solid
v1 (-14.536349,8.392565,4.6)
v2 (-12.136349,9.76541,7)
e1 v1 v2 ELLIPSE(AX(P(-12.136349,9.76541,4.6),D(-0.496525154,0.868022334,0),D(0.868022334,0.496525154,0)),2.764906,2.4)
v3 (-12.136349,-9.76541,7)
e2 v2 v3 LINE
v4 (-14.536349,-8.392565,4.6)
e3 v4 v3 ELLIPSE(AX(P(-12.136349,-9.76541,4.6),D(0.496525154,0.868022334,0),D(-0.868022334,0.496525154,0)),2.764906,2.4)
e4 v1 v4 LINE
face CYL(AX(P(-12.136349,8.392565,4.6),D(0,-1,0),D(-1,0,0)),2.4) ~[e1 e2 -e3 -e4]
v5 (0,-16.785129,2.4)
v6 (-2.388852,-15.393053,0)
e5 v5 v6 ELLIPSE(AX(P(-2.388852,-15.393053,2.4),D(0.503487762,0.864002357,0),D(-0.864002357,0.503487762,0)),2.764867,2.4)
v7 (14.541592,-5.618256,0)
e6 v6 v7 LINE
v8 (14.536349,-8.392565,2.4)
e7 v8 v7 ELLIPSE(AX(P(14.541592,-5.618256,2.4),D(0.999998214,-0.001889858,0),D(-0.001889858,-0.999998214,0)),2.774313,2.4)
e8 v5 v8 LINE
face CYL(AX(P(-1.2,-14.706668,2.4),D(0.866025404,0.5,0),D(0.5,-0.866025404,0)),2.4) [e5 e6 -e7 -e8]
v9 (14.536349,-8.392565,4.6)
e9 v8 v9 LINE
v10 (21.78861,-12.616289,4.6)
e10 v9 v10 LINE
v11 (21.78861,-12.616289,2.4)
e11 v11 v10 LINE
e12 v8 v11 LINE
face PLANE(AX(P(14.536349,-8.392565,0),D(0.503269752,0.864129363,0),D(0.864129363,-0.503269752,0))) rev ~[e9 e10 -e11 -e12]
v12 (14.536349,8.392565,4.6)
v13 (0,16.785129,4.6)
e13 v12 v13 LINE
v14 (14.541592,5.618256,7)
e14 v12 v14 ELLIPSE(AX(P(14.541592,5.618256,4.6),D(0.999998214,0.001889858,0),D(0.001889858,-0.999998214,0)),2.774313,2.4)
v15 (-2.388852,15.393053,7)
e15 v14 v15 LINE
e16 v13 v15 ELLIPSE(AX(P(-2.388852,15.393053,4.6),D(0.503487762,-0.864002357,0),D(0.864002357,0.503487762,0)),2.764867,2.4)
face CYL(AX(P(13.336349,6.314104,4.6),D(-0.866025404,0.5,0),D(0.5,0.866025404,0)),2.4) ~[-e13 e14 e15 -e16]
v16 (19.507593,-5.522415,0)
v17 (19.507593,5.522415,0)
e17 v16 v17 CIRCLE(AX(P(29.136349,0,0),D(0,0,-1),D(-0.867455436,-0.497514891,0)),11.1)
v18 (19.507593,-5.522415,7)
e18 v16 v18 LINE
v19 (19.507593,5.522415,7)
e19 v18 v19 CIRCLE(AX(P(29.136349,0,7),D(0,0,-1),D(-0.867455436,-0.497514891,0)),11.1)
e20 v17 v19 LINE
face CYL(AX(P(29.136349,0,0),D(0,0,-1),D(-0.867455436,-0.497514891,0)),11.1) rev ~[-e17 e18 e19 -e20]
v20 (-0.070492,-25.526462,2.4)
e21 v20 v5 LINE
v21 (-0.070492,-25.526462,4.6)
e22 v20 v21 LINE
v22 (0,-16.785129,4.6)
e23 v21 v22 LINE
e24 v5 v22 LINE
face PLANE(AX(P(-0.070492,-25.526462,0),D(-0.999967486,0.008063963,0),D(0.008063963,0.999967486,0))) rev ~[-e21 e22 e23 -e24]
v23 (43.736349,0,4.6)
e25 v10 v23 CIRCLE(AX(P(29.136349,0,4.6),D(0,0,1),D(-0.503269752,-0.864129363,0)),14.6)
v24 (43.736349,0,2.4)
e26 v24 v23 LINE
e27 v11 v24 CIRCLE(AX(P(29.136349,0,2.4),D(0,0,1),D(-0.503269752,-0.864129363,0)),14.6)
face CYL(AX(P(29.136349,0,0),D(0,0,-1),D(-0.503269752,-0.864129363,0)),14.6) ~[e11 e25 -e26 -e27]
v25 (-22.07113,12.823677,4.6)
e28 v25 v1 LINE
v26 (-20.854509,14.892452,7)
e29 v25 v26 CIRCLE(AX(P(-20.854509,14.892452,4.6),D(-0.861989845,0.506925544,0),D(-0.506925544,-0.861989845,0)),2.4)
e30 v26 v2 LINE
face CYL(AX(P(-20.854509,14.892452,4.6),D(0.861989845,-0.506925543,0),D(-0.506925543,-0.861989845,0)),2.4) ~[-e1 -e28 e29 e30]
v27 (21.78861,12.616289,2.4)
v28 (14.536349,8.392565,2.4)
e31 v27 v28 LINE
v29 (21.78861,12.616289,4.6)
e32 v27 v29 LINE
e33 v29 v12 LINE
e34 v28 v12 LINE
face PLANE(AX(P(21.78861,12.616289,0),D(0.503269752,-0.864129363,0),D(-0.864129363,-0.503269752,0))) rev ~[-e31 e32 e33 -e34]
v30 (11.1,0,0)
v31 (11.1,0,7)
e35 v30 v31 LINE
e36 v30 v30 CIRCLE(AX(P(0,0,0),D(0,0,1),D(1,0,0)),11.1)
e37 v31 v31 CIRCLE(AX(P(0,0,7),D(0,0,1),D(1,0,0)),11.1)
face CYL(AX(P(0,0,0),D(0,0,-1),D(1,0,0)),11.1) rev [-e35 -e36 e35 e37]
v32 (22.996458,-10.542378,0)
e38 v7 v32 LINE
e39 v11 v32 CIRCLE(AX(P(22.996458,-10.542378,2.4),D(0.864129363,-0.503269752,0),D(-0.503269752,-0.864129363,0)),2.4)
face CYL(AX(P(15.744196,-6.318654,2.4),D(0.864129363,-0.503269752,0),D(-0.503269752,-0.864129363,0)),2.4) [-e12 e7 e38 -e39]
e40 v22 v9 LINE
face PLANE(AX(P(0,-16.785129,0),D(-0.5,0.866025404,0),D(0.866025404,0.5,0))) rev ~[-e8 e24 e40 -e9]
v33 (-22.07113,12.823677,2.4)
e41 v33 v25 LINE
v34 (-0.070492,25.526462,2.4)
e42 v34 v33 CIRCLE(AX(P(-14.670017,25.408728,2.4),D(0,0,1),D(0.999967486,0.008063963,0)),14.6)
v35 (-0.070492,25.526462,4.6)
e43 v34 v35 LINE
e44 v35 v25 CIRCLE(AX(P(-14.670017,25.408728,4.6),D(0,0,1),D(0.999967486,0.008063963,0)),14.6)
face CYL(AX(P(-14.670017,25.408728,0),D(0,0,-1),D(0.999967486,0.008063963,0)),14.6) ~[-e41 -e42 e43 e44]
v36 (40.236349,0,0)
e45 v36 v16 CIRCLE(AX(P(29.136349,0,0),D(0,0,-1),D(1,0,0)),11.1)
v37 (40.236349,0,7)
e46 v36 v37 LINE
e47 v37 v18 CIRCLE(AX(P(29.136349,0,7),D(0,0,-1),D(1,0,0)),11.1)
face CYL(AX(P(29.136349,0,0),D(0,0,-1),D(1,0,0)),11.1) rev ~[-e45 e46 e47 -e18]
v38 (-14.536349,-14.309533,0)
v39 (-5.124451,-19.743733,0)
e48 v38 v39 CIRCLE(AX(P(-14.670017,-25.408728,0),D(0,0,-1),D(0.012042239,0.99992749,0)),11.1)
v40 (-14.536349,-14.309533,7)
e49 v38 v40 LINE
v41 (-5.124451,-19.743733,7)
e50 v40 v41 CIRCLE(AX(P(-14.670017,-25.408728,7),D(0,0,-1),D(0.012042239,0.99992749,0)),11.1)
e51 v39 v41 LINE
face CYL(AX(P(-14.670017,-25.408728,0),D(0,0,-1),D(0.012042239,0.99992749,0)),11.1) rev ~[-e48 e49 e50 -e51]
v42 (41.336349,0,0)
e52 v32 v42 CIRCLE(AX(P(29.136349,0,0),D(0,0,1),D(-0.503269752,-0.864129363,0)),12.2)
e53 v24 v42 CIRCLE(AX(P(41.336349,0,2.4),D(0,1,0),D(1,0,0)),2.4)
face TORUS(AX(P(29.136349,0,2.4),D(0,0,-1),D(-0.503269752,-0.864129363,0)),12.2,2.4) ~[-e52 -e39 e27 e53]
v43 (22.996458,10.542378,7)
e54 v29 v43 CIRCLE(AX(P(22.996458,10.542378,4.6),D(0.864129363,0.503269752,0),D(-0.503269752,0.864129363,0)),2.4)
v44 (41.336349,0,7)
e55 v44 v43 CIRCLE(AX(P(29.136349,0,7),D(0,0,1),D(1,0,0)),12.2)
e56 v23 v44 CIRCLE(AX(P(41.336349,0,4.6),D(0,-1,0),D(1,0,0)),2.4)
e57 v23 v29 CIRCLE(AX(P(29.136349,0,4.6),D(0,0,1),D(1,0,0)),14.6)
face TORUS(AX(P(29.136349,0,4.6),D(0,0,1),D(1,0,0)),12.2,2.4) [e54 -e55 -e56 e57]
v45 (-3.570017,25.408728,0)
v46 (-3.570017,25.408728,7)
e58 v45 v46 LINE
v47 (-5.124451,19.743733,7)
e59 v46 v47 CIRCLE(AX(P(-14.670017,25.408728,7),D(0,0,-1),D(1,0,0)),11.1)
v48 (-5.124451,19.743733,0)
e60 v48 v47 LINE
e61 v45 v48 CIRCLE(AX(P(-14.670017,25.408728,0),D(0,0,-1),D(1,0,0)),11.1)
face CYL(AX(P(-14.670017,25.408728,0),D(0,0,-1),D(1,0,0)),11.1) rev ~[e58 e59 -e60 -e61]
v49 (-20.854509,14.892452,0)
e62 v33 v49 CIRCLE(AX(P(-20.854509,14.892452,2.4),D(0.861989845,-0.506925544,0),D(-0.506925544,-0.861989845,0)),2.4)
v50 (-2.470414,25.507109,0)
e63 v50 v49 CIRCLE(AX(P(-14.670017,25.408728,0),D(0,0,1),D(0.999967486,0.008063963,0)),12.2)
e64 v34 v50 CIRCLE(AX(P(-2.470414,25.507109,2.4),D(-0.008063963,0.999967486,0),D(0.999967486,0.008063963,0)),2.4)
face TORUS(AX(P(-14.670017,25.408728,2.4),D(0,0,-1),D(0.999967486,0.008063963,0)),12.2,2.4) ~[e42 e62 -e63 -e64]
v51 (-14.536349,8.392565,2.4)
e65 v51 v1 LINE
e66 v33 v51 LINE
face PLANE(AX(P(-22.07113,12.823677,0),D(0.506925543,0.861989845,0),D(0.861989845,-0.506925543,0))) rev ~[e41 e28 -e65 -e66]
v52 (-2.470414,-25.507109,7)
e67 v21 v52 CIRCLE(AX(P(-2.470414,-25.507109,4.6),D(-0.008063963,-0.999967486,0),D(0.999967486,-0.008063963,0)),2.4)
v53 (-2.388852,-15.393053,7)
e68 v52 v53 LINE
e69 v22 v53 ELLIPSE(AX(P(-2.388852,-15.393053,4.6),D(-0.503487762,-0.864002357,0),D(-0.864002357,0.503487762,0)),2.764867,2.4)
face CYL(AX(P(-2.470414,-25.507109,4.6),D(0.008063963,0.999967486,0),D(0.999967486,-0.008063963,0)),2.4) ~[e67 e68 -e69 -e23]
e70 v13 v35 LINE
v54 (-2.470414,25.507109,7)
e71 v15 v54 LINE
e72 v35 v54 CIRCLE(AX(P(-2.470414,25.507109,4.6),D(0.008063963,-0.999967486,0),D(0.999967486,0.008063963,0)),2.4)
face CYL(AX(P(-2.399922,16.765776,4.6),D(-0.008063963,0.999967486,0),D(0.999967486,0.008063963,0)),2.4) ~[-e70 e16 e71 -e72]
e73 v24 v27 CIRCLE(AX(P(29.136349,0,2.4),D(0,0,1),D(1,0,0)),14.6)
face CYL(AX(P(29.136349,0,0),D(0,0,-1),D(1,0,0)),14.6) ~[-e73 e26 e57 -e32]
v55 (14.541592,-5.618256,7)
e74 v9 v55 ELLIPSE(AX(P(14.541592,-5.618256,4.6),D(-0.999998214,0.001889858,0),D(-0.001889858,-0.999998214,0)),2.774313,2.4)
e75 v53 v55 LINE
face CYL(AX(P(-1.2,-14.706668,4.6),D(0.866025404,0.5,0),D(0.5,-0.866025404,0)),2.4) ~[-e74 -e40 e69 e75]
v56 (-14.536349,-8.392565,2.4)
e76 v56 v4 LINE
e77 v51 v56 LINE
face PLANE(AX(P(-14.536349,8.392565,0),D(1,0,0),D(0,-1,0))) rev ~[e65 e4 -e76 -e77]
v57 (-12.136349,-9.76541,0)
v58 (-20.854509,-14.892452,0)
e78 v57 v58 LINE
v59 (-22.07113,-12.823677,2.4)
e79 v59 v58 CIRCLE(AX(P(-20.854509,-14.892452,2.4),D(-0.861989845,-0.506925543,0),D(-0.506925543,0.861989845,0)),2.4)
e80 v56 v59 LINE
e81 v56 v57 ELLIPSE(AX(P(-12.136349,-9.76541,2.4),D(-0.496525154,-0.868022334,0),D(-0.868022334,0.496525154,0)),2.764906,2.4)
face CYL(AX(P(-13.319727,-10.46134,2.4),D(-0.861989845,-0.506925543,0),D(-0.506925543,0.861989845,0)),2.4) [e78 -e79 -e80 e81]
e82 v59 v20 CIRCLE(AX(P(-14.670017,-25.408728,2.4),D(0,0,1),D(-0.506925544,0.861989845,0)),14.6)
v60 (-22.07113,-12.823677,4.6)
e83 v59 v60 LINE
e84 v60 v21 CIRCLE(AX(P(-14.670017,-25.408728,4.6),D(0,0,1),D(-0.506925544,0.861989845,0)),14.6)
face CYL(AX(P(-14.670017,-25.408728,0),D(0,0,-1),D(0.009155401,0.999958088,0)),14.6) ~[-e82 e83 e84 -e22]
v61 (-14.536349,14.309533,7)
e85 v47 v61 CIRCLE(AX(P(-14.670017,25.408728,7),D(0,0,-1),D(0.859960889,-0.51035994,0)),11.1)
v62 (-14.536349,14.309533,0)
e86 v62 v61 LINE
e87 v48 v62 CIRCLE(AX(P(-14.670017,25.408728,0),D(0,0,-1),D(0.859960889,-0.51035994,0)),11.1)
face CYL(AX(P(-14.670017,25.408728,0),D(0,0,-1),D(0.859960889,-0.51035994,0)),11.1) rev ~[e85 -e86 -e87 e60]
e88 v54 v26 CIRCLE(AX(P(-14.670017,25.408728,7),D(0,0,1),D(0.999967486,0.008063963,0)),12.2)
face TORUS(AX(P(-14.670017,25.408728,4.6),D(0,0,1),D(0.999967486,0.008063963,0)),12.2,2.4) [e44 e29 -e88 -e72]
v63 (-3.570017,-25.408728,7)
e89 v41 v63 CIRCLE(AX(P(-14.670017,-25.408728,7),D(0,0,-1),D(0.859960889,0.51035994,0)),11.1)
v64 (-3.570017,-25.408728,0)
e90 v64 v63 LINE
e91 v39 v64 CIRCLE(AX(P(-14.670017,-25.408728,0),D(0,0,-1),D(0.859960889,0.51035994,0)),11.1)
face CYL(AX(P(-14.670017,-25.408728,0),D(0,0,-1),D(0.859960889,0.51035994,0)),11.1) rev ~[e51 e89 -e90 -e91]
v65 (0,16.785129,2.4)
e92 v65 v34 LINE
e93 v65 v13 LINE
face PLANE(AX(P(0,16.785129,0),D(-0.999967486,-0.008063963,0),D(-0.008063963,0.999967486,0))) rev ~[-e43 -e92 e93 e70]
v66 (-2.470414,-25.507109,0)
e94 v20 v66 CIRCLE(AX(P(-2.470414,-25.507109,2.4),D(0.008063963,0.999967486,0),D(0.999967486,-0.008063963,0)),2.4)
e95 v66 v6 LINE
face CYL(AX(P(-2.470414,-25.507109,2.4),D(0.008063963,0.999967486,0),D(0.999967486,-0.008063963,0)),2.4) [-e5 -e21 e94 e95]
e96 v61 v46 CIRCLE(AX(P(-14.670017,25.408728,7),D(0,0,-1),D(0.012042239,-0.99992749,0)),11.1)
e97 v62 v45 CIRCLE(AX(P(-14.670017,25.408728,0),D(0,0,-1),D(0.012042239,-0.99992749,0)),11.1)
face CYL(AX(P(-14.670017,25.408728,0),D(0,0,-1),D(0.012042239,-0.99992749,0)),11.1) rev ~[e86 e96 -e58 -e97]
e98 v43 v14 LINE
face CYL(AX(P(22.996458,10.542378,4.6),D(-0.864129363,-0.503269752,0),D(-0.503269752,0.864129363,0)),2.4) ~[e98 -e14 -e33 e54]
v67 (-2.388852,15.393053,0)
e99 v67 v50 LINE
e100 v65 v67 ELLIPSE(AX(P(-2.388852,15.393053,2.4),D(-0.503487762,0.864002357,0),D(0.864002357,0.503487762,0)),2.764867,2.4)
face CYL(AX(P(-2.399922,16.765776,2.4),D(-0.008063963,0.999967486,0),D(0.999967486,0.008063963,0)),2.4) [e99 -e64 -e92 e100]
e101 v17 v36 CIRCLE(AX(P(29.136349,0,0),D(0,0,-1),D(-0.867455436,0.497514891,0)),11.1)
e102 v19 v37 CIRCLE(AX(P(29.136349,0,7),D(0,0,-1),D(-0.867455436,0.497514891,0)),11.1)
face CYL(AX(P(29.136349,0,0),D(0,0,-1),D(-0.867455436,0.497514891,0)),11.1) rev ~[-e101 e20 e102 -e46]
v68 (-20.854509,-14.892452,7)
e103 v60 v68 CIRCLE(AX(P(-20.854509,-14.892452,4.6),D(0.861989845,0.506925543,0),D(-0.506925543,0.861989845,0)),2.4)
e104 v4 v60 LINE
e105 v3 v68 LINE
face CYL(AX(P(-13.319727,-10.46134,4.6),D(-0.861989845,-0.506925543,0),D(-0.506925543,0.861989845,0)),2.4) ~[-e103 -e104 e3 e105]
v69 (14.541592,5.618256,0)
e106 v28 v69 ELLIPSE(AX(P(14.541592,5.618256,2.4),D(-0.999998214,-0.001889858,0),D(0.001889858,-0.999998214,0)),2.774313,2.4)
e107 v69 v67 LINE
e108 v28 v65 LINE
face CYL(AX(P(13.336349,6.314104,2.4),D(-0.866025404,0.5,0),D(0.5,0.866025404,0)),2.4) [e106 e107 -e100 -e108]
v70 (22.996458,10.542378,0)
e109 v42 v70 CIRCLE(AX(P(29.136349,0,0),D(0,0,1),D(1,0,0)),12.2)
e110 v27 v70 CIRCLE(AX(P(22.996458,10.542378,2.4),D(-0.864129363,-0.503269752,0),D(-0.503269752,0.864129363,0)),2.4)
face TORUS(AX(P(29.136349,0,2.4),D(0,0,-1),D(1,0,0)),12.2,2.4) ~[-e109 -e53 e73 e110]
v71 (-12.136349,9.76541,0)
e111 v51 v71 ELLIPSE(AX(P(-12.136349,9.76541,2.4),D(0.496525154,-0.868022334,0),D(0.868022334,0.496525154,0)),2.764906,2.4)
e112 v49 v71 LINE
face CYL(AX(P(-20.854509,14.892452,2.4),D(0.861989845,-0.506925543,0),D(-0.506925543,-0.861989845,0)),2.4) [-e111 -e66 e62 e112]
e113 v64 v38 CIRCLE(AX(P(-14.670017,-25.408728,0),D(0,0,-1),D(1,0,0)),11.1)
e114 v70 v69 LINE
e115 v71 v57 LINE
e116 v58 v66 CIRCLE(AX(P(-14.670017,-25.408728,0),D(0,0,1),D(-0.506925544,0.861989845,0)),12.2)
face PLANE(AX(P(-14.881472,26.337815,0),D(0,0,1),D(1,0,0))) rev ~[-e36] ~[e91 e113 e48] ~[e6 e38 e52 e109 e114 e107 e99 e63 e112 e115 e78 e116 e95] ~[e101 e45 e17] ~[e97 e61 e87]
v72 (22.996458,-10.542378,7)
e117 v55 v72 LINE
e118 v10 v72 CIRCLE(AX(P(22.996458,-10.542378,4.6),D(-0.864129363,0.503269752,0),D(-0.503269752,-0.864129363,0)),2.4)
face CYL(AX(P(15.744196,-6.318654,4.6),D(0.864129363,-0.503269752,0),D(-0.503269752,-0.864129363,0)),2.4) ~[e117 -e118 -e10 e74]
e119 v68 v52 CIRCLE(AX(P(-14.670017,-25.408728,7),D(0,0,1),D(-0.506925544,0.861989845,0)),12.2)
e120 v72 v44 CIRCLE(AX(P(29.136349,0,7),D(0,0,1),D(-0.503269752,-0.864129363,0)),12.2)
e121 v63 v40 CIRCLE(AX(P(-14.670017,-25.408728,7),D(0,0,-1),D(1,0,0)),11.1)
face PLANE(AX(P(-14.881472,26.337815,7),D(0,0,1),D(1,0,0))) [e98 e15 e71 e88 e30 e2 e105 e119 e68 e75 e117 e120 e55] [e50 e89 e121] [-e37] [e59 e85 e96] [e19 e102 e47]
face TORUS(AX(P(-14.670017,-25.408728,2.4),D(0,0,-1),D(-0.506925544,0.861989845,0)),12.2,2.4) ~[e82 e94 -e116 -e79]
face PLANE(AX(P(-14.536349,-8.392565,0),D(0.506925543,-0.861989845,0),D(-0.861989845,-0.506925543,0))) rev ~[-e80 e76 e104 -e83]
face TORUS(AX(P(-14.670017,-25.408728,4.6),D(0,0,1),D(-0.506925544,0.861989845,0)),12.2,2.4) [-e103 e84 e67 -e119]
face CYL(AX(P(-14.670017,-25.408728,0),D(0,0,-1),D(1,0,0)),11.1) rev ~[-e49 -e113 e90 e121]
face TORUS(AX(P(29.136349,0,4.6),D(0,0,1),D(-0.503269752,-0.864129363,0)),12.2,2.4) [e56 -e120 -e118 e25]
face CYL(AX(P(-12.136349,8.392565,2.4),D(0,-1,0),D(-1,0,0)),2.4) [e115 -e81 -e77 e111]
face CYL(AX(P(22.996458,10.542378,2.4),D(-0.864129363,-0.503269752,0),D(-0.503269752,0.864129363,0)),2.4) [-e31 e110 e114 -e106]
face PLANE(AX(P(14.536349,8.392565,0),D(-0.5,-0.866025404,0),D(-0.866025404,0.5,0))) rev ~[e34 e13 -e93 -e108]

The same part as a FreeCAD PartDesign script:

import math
import FreeCAD as App
import Part
import Sketcher
Q = App.Units.Quantity


def edges_at(feature, points):
    """Names of the edges that pass closest to the given points."""
    edges = feature.Shape.Edges
    near = lambda p: min(range(len(edges)), key=lambda i: edges[i].distToShape(Part.Vertex(*p))[0])
    return sorted({f"Edge{near(p) + 1}" for p in points})

doc = App.newDocument("Part")
body = doc.addObject("PartDesign::Body", "Body")

# Sketch on XY plane
sketch1 = doc.addObject("Sketcher::SketchObject", "Sketch")
body.addObject(sketch1)
sketch1.AttachmentSupport = (doc.XY_Plane, [""])
sketch1.MapMode = "FlatFace"
sketch1.addGeometry([
    Part.ArcOfCircle(Part.Circle(App.Vector(29.136349, 0, 0), App.Vector(0, 0, 1), 14.6), math.radians(-120.216562), math.radians(0)),  # 0
    Part.ArcOfCircle(Part.Circle(App.Vector(29.136349, 0, 0), App.Vector(0, 0, 1), 14.6), math.radians(0), math.radians(120.216562)),  # 1
    Part.LineSegment(App.Vector(21.78861, 12.616289, 0), App.Vector(14.536349, 8.392565, 0)),  # 2
    Part.LineSegment(App.Vector(14.536349, 8.392565, 0), App.Vector(0, 16.785129, 0)),  # 3
    Part.LineSegment(App.Vector(0, 16.785129, 0), App.Vector(-0.070492, 25.526462, 0)),  # 4
    Part.ArcOfCircle(Part.Circle(App.Vector(-14.670017, 25.408728, 0), App.Vector(0, 0, 1), 14.6), math.radians(0.462036), math.radians(239.540742)),  # 5
    Part.LineSegment(App.Vector(-22.07113, 12.823677, 0), App.Vector(-14.536349, 8.392565, 0)),  # 6
    Part.LineSegment(App.Vector(-14.536349, 8.392565, 0), App.Vector(-14.536349, -8.392565, 0)),  # 7
    Part.LineSegment(App.Vector(-14.536349, -8.392565, 0), App.Vector(-22.07113, -12.823677, 0)),  # 8
    Part.ArcOfCircle(Part.Circle(App.Vector(-14.670017, -25.408728, 0), App.Vector(0, 0, 1), 14.6), math.radians(120.459258), math.radians(359.537964)),  # 9
    Part.LineSegment(App.Vector(-0.070492, -25.526462, 0), App.Vector(0, -16.785129, 0)),  # 10
    Part.LineSegment(App.Vector(0, -16.785129, 0), App.Vector(14.536349, -8.392565, 0)),  # 11
    Part.LineSegment(App.Vector(14.536349, -8.392565, 0), App.Vector(21.78861, -12.616289, 0)),  # 12
    Part.Circle(App.Vector(0, 0, 0), App.Vector(0, 0, 1), 11.1),  # 13
    Part.ArcOfCircle(Part.Circle(App.Vector(29.136349, 0, 0), App.Vector(0, 0, 1), 11.1), math.radians(-150.164278), math.radians(0)),  # 14
    Part.ArcOfCircle(Part.Circle(App.Vector(29.136349, 0, 0), App.Vector(0, 0, 1), 11.1), math.radians(150.164278), math.radians(209.835722)),  # 15
    Part.ArcOfCircle(Part.Circle(App.Vector(29.136349, 0, 0), App.Vector(0, 0, 1), 11.1), math.radians(0), math.radians(150.164278)),  # 16
    Part.ArcOfCircle(Part.Circle(App.Vector(-14.670017, 25.408728, 0), App.Vector(0, 0, 1), 11.1), math.radians(0), math.radians(270.689986)),  # 17
    Part.ArcOfCircle(Part.Circle(App.Vector(-14.670017, 25.408728, 0), App.Vector(0, 0, 1), 11.1), math.radians(-30.687808), math.radians(0)),  # 18
    Part.ArcOfCircle(Part.Circle(App.Vector(-14.670017, 25.408728, 0), App.Vector(0, 0, 1), 11.1), math.radians(-89.310014), math.radians(-30.687808)),  # 19
    Part.ArcOfCircle(Part.Circle(App.Vector(-14.670017, -25.408728, 0), App.Vector(0, 0, 1), 11.1), math.radians(89.310014), math.radians(360)),  # 20
    Part.ArcOfCircle(Part.Circle(App.Vector(-14.670017, -25.408728, 0), App.Vector(0, 0, 1), 11.1), math.radians(30.687808), math.radians(89.310014)),  # 21
    Part.ArcOfCircle(Part.Circle(App.Vector(-14.670017, -25.408728, 0), App.Vector(0, 0, 1), 11.1), math.radians(0), math.radians(30.687808)),  # 22
], False)
sketch1.addConstraint([
    Sketcher.Constraint("Tangent", 0, 2, 1, 1),
    Sketcher.Constraint("Tangent", 1, 2, 2, 1),
    Sketcher.Constraint("Coincident", 2, 2, 3, 1),
    Sketcher.Constraint("Coincident", 3, 2, 4, 1),
    Sketcher.Constraint("Tangent", 4, 2, 5, 1),
    Sketcher.Constraint("Tangent", 5, 2, 6, 1),
    Sketcher.Constraint("Coincident", 6, 2, 7, 1),
    Sketcher.Constraint("Coincident", 7, 2, 8, 1),
    Sketcher.Constraint("Tangent", 8, 2, 9, 1),
    Sketcher.Constraint("Tangent", 9, 2, 10, 1),
    Sketcher.Constraint("Coincident", 10, 2, 11, 1),
    Sketcher.Constraint("Coincident", 11, 2, 12, 1),
    Sketcher.Constraint("Tangent", 12, 2, 0, 1),
    Sketcher.Constraint("Tangent", 14, 1, 15, 2),
    Sketcher.Constraint("Tangent", 15, 1, 16, 2),
    Sketcher.Constraint("Tangent", 16, 1, 14, 2),
    Sketcher.Constraint("Tangent", 17, 1, 18, 2),
    Sketcher.Constraint("Tangent", 18, 1, 19, 2),
    Sketcher.Constraint("Tangent", 19, 1, 17, 2),
    Sketcher.Constraint("Tangent", 20, 1, 21, 2),
    Sketcher.Constraint("Tangent", 21, 1, 22, 2),
    Sketcher.Constraint("Tangent", 22, 1, 20, 2),
    Sketcher.Constraint("Vertical", 7),
    Sketcher.Constraint("Coincident", 13, 3, -1, 1),
    Sketcher.Constraint("Coincident", 14, 3, 0, 3),
    Sketcher.Constraint("Coincident", 17, 3, 5, 3),
    Sketcher.Constraint("Coincident", 20, 3, 9, 3),
    Sketcher.Constraint("Equal", 0, 1),
    Sketcher.Constraint("Equal", 1, 5),
    Sketcher.Constraint("Equal", 5, 9),
    Sketcher.Constraint("Equal", 13, 14),
    Sketcher.Constraint("Equal", 16, 17),
    Sketcher.Constraint("Equal", 19, 20),
    Sketcher.Constraint("Symmetric", 2, 2, 7, 2, -1, 1),
    Sketcher.Constraint("Symmetric", 3, 2, 10, 2, -1, 1),
    Sketcher.Constraint("Symmetric", 6, 2, 11, 2, -1, 1),
    Sketcher.Constraint("Symmetric", 5, 3, 9, 3, -1),
    Sketcher.Constraint("Symmetric", 1, 2, 12, 2, -1),
    Sketcher.Constraint("PointOnObject", 0, 2, -1),
    Sketcher.Constraint("PointOnObject", 3, 2, -2),
    Sketcher.Constraint("PointOnObject", 16, 1, -1),
    Sketcher.Constraint("Horizontal", 19, 3, 17, 1),
    Sketcher.Constraint("Horizontal", 21, 3, 22, 1),
    Sketcher.Constraint("Vertical", 14, 1, 15, 1),
    Sketcher.Constraint("Vertical", 7, 2, 19, 1),
    Sketcher.Constraint("Vertical", 19, 1, 20, 1),
    Sketcher.Constraint("Vertical", 18, 1, 21, 1),
    Sketcher.Constraint("Diameter", 13, 22.2),
    Sketcher.Constraint("Radius", 0, 14.6),
    Sketcher.Constraint("Angle", 3, Q("150 deg")),
    Sketcher.Constraint("DistanceX", 2, 2, 15, 3, 14.6),
    Sketcher.Constraint("DistanceY", 7, 2, 7, 1, 16.785129),
    Sketcher.Constraint("DistanceY", 3, 2, 5, 3, 8.623599),
    Sketcher.Constraint("DistanceY", 19, 1, 18, 1, 5.4342),
    Sketcher.Constraint("Distance", 3, 16.785129),
    Sketcher.Constraint("Distance", 6, 8.741149),
    Sketcher.Constraint("DistanceY", 11, 2, 14, 1, 2.870149),
])
pad1 = doc.addObject("PartDesign::Pad", "Pad")
body.addObject(pad1)
pad1.Profile = sketch1
pad1.Length = 7
doc.recompute()

fillet = doc.addObject("PartDesign::Fillet", "Fillet")
body.addObject(fillet)
fillet.Base = (pad1, edges_at(pad1, [
    (-18.304, -10.608, 0),
    (-18.304, 10.608, 0),
    (-21.97, -38.053, 7),
    (-0.07, 25.526, 3.5),
    (-22.071, 12.824, 3.5),
    (-21.97, 38.053, 0),
    (-21.97, 38.053, 7),
    (18.162, 10.504, 7),
    (18.162, 10.504, 0),
    (-14.536, 0, 0),
    (7.268, 12.589, 7),
    (7.268, 12.589, 0),
    (7.268, -12.589, 0),
    (-14.536, 0, 7),
    (7.268, -12.589, 7),
]))
fillet.Radius = 2.4

doc.recompute()
